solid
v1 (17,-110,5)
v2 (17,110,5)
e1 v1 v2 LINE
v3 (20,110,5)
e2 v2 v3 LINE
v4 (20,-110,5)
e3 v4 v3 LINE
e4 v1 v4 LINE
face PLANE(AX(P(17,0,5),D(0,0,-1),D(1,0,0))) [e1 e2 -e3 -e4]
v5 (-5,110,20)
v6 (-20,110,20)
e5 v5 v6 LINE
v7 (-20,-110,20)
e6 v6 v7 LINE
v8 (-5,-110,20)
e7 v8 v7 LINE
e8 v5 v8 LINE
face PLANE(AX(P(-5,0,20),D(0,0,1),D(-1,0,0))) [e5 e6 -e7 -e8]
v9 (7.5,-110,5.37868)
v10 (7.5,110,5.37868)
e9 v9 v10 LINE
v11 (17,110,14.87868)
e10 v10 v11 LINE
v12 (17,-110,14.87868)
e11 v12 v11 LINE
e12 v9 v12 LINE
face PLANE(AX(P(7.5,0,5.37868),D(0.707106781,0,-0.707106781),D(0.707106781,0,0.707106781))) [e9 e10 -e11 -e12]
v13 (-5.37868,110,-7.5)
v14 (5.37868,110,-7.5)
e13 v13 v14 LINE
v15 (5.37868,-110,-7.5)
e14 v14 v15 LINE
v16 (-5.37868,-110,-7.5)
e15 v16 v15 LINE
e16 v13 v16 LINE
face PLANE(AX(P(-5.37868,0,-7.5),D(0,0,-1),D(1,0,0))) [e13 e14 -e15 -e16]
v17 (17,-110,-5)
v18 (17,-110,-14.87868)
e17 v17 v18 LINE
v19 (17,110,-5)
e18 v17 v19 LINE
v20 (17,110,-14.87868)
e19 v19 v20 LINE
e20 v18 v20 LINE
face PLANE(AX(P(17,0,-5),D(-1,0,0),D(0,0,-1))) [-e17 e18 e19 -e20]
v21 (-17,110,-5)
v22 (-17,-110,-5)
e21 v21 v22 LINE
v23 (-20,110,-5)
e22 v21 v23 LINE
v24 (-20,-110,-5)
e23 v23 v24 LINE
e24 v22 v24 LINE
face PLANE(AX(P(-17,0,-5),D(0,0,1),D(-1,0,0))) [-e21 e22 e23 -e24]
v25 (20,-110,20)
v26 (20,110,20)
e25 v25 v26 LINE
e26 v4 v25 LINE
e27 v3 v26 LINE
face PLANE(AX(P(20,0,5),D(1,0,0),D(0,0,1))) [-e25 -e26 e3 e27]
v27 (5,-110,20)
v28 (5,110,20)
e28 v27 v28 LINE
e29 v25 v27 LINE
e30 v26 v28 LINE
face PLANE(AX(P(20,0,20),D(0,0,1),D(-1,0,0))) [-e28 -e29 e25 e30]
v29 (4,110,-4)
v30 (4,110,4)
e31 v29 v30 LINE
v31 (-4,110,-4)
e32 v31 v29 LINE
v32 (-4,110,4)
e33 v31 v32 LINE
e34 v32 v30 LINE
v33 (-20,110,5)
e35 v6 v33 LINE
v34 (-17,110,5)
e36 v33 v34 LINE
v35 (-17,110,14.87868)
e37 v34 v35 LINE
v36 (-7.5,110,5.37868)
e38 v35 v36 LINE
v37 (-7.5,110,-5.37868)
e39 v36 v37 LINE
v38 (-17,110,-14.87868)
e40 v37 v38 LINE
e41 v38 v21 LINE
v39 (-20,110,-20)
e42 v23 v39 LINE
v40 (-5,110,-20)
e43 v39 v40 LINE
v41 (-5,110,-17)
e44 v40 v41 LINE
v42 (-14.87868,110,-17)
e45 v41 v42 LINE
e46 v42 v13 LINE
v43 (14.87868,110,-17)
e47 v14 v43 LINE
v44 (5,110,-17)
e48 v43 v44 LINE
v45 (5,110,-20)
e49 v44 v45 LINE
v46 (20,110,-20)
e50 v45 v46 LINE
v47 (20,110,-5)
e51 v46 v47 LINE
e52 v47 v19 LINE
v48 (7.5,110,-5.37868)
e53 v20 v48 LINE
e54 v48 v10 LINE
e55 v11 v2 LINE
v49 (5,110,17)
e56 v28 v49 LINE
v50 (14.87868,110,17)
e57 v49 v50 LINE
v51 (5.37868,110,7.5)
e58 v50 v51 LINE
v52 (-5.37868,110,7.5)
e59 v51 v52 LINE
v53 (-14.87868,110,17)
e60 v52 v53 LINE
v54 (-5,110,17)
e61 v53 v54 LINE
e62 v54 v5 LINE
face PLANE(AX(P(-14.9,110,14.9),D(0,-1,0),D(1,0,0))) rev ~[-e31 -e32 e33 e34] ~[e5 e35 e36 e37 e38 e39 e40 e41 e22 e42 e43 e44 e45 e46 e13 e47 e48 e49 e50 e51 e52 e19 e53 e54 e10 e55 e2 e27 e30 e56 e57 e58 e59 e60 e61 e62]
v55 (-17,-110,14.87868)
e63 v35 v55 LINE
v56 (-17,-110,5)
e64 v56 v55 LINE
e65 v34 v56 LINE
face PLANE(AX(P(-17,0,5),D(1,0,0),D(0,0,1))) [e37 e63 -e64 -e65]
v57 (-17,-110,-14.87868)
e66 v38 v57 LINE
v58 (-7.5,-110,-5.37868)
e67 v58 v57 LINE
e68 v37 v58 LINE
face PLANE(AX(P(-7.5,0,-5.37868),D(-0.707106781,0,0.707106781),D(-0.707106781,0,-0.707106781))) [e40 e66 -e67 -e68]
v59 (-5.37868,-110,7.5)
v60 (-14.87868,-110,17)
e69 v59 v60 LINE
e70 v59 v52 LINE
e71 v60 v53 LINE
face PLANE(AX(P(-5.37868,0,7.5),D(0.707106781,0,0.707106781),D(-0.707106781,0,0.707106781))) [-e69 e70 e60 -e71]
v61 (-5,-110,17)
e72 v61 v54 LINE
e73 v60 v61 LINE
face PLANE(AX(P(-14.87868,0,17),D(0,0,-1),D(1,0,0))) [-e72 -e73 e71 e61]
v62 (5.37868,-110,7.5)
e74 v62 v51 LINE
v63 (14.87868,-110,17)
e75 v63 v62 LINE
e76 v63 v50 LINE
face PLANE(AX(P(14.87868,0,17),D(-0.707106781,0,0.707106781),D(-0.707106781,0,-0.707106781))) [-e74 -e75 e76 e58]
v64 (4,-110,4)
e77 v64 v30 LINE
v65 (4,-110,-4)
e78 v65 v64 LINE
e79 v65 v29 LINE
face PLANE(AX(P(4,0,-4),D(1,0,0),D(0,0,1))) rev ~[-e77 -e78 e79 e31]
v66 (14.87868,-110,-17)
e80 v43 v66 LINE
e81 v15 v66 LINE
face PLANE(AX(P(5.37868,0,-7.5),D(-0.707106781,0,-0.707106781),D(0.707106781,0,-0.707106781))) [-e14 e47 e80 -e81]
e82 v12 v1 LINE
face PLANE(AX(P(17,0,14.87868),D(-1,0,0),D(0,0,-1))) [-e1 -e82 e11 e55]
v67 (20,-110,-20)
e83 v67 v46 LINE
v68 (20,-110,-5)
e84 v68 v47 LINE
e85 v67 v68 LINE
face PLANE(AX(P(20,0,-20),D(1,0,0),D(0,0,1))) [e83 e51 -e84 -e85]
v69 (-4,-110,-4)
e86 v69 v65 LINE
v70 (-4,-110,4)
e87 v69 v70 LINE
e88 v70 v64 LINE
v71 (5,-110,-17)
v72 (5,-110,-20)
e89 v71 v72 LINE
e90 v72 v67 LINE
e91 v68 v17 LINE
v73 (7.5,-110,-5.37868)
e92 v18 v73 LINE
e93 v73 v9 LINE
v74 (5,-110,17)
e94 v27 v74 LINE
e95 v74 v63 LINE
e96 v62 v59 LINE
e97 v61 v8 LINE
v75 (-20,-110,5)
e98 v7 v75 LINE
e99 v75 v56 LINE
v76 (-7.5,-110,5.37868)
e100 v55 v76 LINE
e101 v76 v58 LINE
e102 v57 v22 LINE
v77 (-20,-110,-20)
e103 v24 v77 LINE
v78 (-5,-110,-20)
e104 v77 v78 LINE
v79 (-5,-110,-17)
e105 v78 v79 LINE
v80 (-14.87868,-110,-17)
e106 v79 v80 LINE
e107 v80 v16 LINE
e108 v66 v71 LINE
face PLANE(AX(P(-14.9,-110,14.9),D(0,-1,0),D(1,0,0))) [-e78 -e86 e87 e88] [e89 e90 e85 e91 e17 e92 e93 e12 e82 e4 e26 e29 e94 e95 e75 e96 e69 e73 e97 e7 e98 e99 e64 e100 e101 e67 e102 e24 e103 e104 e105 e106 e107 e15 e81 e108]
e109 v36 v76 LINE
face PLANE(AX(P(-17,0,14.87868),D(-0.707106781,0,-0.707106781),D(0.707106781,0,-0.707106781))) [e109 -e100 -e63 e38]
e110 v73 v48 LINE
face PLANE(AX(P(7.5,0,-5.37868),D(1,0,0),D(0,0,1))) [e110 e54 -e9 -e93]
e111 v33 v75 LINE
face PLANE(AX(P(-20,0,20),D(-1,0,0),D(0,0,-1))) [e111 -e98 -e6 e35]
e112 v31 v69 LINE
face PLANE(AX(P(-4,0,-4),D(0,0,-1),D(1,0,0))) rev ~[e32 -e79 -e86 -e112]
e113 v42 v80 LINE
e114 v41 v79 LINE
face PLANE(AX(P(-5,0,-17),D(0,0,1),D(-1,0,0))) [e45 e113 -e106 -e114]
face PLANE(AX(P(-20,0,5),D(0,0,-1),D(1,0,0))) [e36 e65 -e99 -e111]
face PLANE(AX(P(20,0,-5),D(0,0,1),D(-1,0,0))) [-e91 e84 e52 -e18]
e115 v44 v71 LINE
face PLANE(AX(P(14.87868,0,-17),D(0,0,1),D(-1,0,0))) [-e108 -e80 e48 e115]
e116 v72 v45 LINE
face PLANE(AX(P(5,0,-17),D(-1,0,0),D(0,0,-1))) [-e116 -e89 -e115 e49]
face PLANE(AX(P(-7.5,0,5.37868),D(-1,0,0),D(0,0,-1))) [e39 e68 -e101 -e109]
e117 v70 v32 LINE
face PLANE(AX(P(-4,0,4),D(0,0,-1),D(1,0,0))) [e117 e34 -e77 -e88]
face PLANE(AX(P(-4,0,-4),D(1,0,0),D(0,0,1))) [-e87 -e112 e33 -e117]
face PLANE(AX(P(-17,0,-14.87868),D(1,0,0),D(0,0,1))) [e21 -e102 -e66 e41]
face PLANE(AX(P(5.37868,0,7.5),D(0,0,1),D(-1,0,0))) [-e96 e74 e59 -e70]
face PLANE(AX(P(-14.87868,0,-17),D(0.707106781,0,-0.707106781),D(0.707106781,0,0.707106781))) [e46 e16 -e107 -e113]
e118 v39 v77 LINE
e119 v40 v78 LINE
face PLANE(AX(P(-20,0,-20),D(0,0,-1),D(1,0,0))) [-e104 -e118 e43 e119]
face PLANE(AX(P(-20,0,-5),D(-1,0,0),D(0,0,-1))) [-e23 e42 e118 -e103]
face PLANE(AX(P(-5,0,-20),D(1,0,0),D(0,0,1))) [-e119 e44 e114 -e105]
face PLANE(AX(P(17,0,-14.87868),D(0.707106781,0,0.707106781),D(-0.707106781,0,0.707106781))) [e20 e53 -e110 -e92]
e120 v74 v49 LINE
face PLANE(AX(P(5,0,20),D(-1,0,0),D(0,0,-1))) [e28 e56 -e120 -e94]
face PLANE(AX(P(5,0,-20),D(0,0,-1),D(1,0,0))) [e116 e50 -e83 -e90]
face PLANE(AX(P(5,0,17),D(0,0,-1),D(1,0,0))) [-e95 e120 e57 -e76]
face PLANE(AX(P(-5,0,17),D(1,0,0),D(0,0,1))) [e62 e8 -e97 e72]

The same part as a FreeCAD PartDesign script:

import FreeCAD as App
import Part
import Sketcher

V = App.Vector
Q = App.Units.Quantity


def add_polygon(sketch, points):
    """Adds a closed chain of lines whose ends are joined by coincident constraints."""
    first, n = sketch.GeometryCount, len(points)
    for a, b in zip(points, points[1:] + points[:1]):
        sketch.addGeometry(Part.LineSegment(App.Vector(*a, 0), App.Vector(*b, 0)), False)
    for i in range(n):
        sketch.addConstraint(Sketcher.Constraint("Coincident", first + i, 2, first + (i + 1) % n, 1))

doc = App.newDocument("Part")
body = doc.addObject("PartDesign::Body", "Body")

# Sketch on XZ plane
sketch1 = body.newObject("Sketcher::SketchObject", "Sketch")
sketch1.AttachmentSupport = (doc.getObject("XZ_Plane"), [""])
sketch1.MapMode = "FlatFace"
add_polygon(sketch1, [(-5, 17), (-5, 20), (-20, 20), (-20, 5), (-17, 5), (-17, 14.9), (-7.5, 5.4), (-7.5, -5.4), (-17, -14.9), (-17, -5), (-20, -5), (-20, -20), (-5, -20), (-5, -17), (-14.9, -17), (-5.4, -7.5), (5.4, -7.5), (14.9, -17), (5, -17), (5, -20), (20, -20), (20, -5), (17, -5), (17, -14.9), (7.5, -5.4), (7.5, 5.4), (17, 14.9), (17, 5), (20, 5), (20, 20), (5, 20), (5, 17), (14.9, 17), (5.4, 7.5), (-5.4, 7.5), (-14.9, 17)])  # lines 0-35
add_polygon(sketch1, [(4, -4), (-4, -4), (-4, 4), (4, 4)])  # lines 36-39
sketch1.addConstraint(Sketcher.Constraint("Vertical", 0))
sketch1.addConstraint(Sketcher.Constraint("Horizontal", 1))
sketch1.addConstraint(Sketcher.Constraint("Vertical", 2))
sketch1.addConstraint(Sketcher.Constraint("Horizontal", 3))
sketch1.addConstraint(Sketcher.Constraint("Vertical", 4))
sketch1.addConstraint(Sketcher.Constraint("Vertical", 6))
sketch1.addConstraint(Sketcher.Constraint("Vertical", 8))
sketch1.addConstraint(Sketcher.Constraint("Horizontal", 9))
sketch1.addConstraint(Sketcher.Constraint("Vertical", 10))
sketch1.addConstraint(Sketcher.Constraint("Horizontal", 11))
sketch1.addConstraint(Sketcher.Constraint("Vertical", 12))
sketch1.addConstraint(Sketcher.Constraint("Horizontal", 13))
sketch1.addConstraint(Sketcher.Constraint("Horizontal", 15))
sketch1.addConstraint(Sketcher.Constraint("Horizontal", 17))
sketch1.addConstraint(Sketcher.Constraint("Vertical", 18))
sketch1.addConstraint(Sketcher.Constraint("Horizontal", 19))
sketch1.addConstraint(Sketcher.Constraint("Vertical", 20))
sketch1.addConstraint(Sketcher.Constraint("Horizontal", 21))
sketch1.addConstraint(Sketcher.Constraint("Vertical", 22))
sketch1.addConstraint(Sketcher.Constraint("Vertical", 24))
sketch1.addConstraint(Sketcher.Constraint("Vertical", 26))
sketch1.addConstraint(Sketcher.Constraint("Horizontal", 27))
sketch1.addConstraint(Sketcher.Constraint("Vertical", 28))
sketch1.addConstraint(Sketcher.Constraint("Horizontal", 29))
sketch1.addConstraint(Sketcher.Constraint("Vertical", 30))
sketch1.addConstraint(Sketcher.Constraint("Horizontal", 31))
sketch1.addConstraint(Sketcher.Constraint("Horizontal", 33))
sketch1.addConstraint(Sketcher.Constraint("Horizontal", 35))
sketch1.addConstraint(Sketcher.Constraint("Horizontal", 36))
sketch1.addConstraint(Sketcher.Constraint("Vertical", 37))
sketch1.addConstraint(Sketcher.Constraint("Horizontal", 38))
sketch1.addConstraint(Sketcher.Constraint("Vertical", 39))
sketch1.addConstraint(Sketcher.Constraint("Symmetric", 0, 2, 18, 2, -1, 1))
sketch1.addConstraint(Sketcher.Constraint("Symmetric", 2, 2, 20, 2, -1, 1))
sketch1.addConstraint(Sketcher.Constraint("Symmetric", 4, 2, 22, 2, -1, 1))
sketch1.addConstraint(Sketcher.Constraint("Symmetric", 5, 2, 23, 2, -1, 1))
sketch1.addConstraint(Sketcher.Constraint("Symmetric", 7, 2, 25, 2, -1, 1))
sketch1.addConstraint(Sketcher.Constraint("Symmetric", 9, 2, 27, 2, -1, 1))
sketch1.addConstraint(Sketcher.Constraint("Symmetric", 11, 2, 29, 2, -1, 1))
sketch1.addConstraint(Sketcher.Constraint("Symmetric", 13, 2, 31, 2, -1, 1))
sketch1.addConstraint(Sketcher.Constraint("Symmetric", 14, 2, 32, 2, -1, 1))
sketch1.addConstraint(Sketcher.Constraint("Symmetric", 16, 2, 34, 2, -1, 1))
sketch1.addConstraint(Sketcher.Constraint("Symmetric", 36, 2, 38, 2, -1, 1))
sketch1.addConstraint(Sketcher.Constraint("Symmetric", 13, 2, 16, 2, -2))
sketch1.addConstraint(Sketcher.Constraint("Symmetric", 11, 2, 18, 2, -2))
sketch1.addConstraint(Sketcher.Constraint("Symmetric", 9, 2, 20, 2, -2))
sketch1.addConstraint(Sketcher.Constraint("Symmetric", 7, 2, 22, 2, -2))
sketch1.addConstraint(Sketcher.Constraint("Perpendicular", 5, 7))
sketch1.addConstraint(Sketcher.Constraint("Parallel", 7, 14))
sketch1.addConstraint(Sketcher.Constraint("Perpendicular", 14, 16))
sketch1.addConstraint(Sketcher.Constraint("Perpendicular", 23, 25))
sketch1.addConstraint(Sketcher.Constraint("Perpendicular", 32, 34))
sketch1.addConstraint(Sketcher.Constraint("Horizontal", 6, 2, 23, 2))
sketch1.addConstraint(Sketcher.Constraint("Equal", 27, 0))
sketch1.addConstraint(Sketcher.Constraint("Equal", 29, 2))
sketch1.addConstraint(Sketcher.Constraint("Equal", 35, 4))
sketch1.addConstraint(Sketcher.Constraint("Equal", 33, 6))
sketch1.addConstraint(Sketcher.Constraint("Equal", 38, 37))
sketch1.addConstraint(Sketcher.Constraint("Equal", 7, 14))
sketch1.addConstraint(Sketcher.Constraint("DistanceX", 1, 2, 1, 1, Q("15 mm")))
sketch1.addConstraint(Sketcher.Constraint("DistanceX", 3, 1, 3, 2, Q("3 mm")))
sketch1.addConstraint(Sketcher.Constraint("DistanceX", 36, 2, 36, 1, Q("8 mm")))
sketch1.addConstraint(Sketcher.Constraint("DistanceX", 0, 2, -1, 1, Q("5 mm")))
sketch1.addConstraint(Sketcher.Constraint("DistanceX", 5, 2, 24, 2, Q("15 mm")))
sketch1.addConstraint(Sketcher.Constraint("DistanceX", 13, 2, 13, 1, Q("9.87868 mm")))
pad1 = body.newObject("PartDesign::Pad", "Pad")
pad1.Profile = sketch1
pad1.Length = 220
pad1.Midplane = True

doc.recompute()
